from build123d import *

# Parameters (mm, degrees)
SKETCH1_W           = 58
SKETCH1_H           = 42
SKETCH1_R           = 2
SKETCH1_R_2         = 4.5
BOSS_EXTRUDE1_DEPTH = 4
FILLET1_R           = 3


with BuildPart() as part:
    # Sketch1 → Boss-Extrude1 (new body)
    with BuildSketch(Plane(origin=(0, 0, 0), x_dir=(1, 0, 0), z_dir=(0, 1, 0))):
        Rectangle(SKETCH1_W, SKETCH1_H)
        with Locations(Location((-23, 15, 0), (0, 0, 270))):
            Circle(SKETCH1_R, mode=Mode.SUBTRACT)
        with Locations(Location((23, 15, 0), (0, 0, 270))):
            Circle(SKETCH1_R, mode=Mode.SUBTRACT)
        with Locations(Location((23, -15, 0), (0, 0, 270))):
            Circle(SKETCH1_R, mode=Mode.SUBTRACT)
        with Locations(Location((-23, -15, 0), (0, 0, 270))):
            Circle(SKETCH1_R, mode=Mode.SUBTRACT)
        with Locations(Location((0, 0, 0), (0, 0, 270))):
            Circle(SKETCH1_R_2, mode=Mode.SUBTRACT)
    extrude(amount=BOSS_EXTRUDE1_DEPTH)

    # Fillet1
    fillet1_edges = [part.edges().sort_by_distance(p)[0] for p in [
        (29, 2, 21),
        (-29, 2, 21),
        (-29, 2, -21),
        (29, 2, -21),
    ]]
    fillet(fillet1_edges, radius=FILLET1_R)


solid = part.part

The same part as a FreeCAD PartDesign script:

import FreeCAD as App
import Part
import Sketcher
from FreeCAD import Vector


def edges_at(feature, points):
    """Names of the edges that pass closest to the given points."""
    edges = feature.Shape.Edges
    near = lambda p: min(range(len(edges)), key=lambda i: edges[i].distToShape(Part.Vertex(*p))[0])
    return sorted({f"Edge{near(p) + 1}" for p in points})


def add_polygon(sketch, points):
    """Adds a closed chain of lines whose ends are joined by coincident constraints."""
    first, n = sketch.GeometryCount, len(points)
    for a, b in zip(points, points[1:] + points[:1]):
        sketch.addGeometry(Part.LineSegment(App.Vector(*a, 0), App.Vector(*b, 0)), False)
    for i in range(n):
        sketch.addConstraint(Sketcher.Constraint("Coincident", first + i, 2, first + (i + 1) % n, 1))

doc = App.newDocument("Part")
body = doc.addObject("PartDesign::Body", "Body")

sketch1 = body.newObject("Sketcher::SketchObject", "Sketch")
sketch1.AttachmentSupport = (doc.getObject("XZ_Plane"), [""])
sketch1.MapMode = "FlatFace"
add_polygon(sketch1, [(-29, -21), (-29, 21), (29, 21), (29, -21)])
sketch1.addGeometry(Part.Circle(Vector(-23, 15, 0), Vector(0, 0, 1), 2), False)
sketch1.addGeometry(Part.Circle(Vector(23, 15, 0), Vector(0, 0, 1), 2), False)
sketch1.addGeometry(Part.Circle(Vector(-23, -15, 0), Vector(0, 0, 1), 2), False)
sketch1.addGeometry(Part.Circle(Vector(0, 0, 0), Vector(0, 0, 1), 4.5), False)
sketch1.addGeometry(Part.Circle(Vector(23, -15, 0), Vector(0, 0, 1), 2), False)
sketch1.addConstraint(Sketcher.Constraint("Vertical", 0))
sketch1.addConstraint(Sketcher.Constraint("Horizontal", 1))
sketch1.addConstraint(Sketcher.Constraint("Vertical", 2))
sketch1.addConstraint(Sketcher.Constraint("Horizontal", 3))
sketch1.addConstraint(Sketcher.Constraint("Coincident", 7, 3, -1, 1))
sketch1.addConstraint(Sketcher.Constraint("Equal", 4, 5))
sketch1.addConstraint(Sketcher.Constraint("Equal", 5, 6))
sketch1.addConstraint(Sketcher.Constraint("Equal", 6, 8))
sketch1.addConstraint(Sketcher.Constraint("Symmetric", 5, 3, 6, 3, -1, 1))
sketch1.addConstraint(Sketcher.Constraint("Symmetric", 4, 3, 8, 3, -1, 1))
sketch1.addConstraint(Sketcher.Constraint("Symmetric", 0, 2, 2, 2, -1, 1))
sketch1.addConstraint(Sketcher.Constraint("Symmetric", 4, 3, 5, 3, -2))
sketch1.addConstraint(Sketcher.Constraint("Diameter", 4, 4.0))
sketch1.addConstraint(Sketcher.Constraint("Diameter", 7, 9.0))
sketch1.addConstraint(Sketcher.Constraint("DistanceX", 1, 1, 1, 2, 58.0))
sketch1.addConstraint(Sketcher.Constraint("DistanceY", 0, 1, 0, 2, 42.0))
sketch1.addConstraint(Sketcher.Constraint("DistanceX", 4, 3, -1, 1, 23.0))
sketch1.addConstraint(Sketcher.Constraint("DistanceY", -1, 1, 4, 3, 15.0))
pad1 = body.newObject("PartDesign::Pad", "Pad")
pad1.Profile = sketch1
pad1.Length = 4
pad1.Reversed = True
doc.recompute()

fillet = body.newObject("PartDesign::Fillet", "Fillet")
fillet.Base = (pad1, edges_at(pad1, [
    (29, 2, 21),
    (-29, 2, 21),
    (-29, 2, -21),
    (29, 2, -21),
]))
fillet.Radius = 3

doc.recompute()
